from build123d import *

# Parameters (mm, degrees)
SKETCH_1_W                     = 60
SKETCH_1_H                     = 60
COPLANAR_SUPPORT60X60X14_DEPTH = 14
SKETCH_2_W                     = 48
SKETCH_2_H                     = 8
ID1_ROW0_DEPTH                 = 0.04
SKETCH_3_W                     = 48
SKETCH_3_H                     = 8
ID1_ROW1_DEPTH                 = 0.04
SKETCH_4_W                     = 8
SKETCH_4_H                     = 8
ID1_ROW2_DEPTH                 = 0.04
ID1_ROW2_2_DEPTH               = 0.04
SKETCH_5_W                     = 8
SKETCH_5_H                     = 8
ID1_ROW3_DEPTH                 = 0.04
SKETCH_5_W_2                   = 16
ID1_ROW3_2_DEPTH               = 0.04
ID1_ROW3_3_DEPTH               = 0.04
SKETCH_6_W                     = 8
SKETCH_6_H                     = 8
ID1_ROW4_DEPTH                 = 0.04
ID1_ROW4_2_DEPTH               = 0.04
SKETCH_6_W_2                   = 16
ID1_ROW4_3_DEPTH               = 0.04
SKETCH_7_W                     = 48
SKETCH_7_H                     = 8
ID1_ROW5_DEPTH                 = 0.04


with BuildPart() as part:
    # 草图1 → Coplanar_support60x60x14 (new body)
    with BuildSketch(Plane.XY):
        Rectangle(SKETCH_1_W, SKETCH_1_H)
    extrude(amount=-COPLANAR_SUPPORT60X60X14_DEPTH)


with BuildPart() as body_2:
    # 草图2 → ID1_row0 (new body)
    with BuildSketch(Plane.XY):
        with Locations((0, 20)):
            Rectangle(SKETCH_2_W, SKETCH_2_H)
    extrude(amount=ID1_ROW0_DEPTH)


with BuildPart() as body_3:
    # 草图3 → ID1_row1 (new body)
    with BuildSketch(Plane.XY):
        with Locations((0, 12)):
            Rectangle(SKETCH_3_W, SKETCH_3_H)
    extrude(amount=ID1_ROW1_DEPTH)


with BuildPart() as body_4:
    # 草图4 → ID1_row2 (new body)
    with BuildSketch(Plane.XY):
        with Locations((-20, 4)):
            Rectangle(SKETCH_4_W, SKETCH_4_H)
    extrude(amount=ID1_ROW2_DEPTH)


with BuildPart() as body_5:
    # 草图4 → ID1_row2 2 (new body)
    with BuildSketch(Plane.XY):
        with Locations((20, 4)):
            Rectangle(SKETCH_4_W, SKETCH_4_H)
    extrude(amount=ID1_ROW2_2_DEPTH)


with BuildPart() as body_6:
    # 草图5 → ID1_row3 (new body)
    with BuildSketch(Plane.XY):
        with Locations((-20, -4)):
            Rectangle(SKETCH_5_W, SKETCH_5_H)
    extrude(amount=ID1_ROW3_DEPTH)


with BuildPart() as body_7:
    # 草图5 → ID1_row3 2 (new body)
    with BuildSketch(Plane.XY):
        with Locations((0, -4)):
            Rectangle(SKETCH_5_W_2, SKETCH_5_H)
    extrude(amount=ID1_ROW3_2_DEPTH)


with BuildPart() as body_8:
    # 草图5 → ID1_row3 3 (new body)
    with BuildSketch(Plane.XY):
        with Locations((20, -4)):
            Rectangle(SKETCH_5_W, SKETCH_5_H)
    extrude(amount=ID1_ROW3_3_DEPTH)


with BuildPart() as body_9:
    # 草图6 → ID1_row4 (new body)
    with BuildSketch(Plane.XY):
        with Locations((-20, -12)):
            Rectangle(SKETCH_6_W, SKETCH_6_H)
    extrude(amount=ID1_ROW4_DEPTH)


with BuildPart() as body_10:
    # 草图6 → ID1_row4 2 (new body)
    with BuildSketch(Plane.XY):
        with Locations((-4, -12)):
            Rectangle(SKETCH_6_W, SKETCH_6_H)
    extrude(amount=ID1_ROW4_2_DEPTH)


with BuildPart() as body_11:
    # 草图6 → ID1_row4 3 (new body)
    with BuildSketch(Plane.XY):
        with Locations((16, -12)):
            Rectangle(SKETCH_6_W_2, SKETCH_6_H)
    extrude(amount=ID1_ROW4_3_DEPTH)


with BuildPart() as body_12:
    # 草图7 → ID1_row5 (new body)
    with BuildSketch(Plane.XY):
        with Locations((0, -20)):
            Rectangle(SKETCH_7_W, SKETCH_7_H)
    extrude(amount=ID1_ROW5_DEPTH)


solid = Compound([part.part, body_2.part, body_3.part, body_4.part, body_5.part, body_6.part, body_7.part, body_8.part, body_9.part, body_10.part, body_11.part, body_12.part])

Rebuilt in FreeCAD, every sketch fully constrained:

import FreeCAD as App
import Part
import Sketcher

V = App.Vector
Q = App.Units.Quantity

doc = App.newDocument("Part")
params = doc.addObject("Spreadsheet::Sheet", "Params")
for row, (alias, value) in enumerate([
    ("sketch1_width", "60 mm"),
    ("pad1_length", "14 mm"),
    ("sketch2_width", "48 mm"),
    ("sketch2_height", "8 mm"),
    ("pad2_length", "0.04 mm"),
    ("sketch3_width", "48 mm"),
    ("sketch3_height", "8 mm"),
    ("pad3_length", "0.04 mm"),
    ("sketch4_width", "8 mm"),
    ("pad4_length", "0.04 mm"),
    ("sketch5_width", "8 mm"),
    ("pad5_length", "0.04 mm"),
    ("sketch6_width", "8 mm"),
    ("pad6_length", "0.04 mm"),
    ("sketch7_width", "16 mm"),
    ("sketch7_height", "8 mm"),
    ("pad7_length", "0.04 mm"),
    ("sketch8_width", "8 mm"),
    ("pad8_length", "0.04 mm"),
    ("sketch9_width", "8 mm"),
    ("pad9_length", "0.04 mm"),
    ("sketch10_width", "8 mm"),
    ("pad10_length", "0.04 mm"),
    ("sketch11_width", "16 mm"),
    ("sketch11_height", "8 mm"),
    ("pad11_length", "0.04 mm"),
    ("sketch12_width", "48 mm"),
    ("sketch12_height", "8 mm"),
    ("pad12_length", "0.04 mm"),
], start=1):
    params.set(f"A{row}", alias)
    params.set(f"B{row}", "=" + value)
    params.setAlias(f"B{row}", alias)

body = doc.addObject("PartDesign::Body", "Body")

sketch1 = body.newObject("Sketcher::SketchObject", "Sketch")
sketch1.AttachmentSupport = (doc.getObject("XY_Plane"), [""])
sketch1.MapMode = "FlatFace"
sketch1.addGeometry([
    Part.LineSegment(V(-30, 30, 0), V(-30, -30, 0)),
    Part.LineSegment(V(-30, -30, 0), V(30, -30, 0)),
    Part.LineSegment(V(30, -30, 0), V(30, 30, 0)),
    Part.LineSegment(V(30, 30, 0), V(-30, 30, 0)),
], False)
sketch1.addConstraint([
    Sketcher.Constraint("Coincident", 0, 2, 1, 1),
    Sketcher.Constraint("Coincident", 1, 2, 2, 1),
    Sketcher.Constraint("Coincident", 2, 2, 3, 1),
    Sketcher.Constraint("Coincident", 3, 2, 0, 1),
    Sketcher.Constraint("Vertical", 0),
    Sketcher.Constraint("Horizontal", 1),
    Sketcher.Constraint("Vertical", 2),
    Sketcher.Constraint("Horizontal", 3),
    Sketcher.Constraint("Symmetric", 0, 2, 2, 2, -1, 1),
    Sketcher.Constraint("Equal", 3, 0),
    Sketcher.Constraint("DistanceX", 1, 1, 1, 2, Q("60 mm")),
])
sketch1.setExpression("Constraints[10]", "Params.sketch1_width")
pad1 = body.newObject("PartDesign::Pad", "Pad")
pad1.Profile = sketch1
pad1.setExpression("Length", "Params.pad1_length")
pad1.Reversed = True
body2 = doc.addObject("PartDesign::Body", "Body001")

sketch2 = body2.newObject("Sketcher::SketchObject", "Sketch001")
sketch2.AttachmentSupport = (doc.getObject("XY_Plane001"), [""])
sketch2.MapMode = "FlatFace"
sketch2.addGeometry([
    Part.LineSegment(V(-24, 24, 0), V(-24, 16, 0)),
    Part.LineSegment(V(-24, 16, 0), V(24, 16, 0)),
    Part.LineSegment(V(24, 16, 0), V(24, 24, 0)),
    Part.LineSegment(V(24, 24, 0), V(-24, 24, 0)),
], False)
sketch2.addConstraint([
    Sketcher.Constraint("Coincident", 0, 2, 1, 1),
    Sketcher.Constraint("Coincident", 1, 2, 2, 1),
    Sketcher.Constraint("Coincident", 2, 2, 3, 1),
    Sketcher.Constraint("Coincident", 3, 2, 0, 1),
    Sketcher.Constraint("Vertical", 0),
    Sketcher.Constraint("Horizontal", 1),
    Sketcher.Constraint("Vertical", 2),
    Sketcher.Constraint("Horizontal", 3),
    Sketcher.Constraint("DistanceX", 1, 1, 1, 2, Q("48 mm")),
    Sketcher.Constraint("DistanceY", 0, 2, 0, 1, Q("8 mm")),
    Sketcher.Constraint("DistanceX", 0, 2, -1, 1, Q("24 mm")),
    Sketcher.Constraint("DistanceY", -1, 1, 0, 2, Q("16 mm")),
])
sketch2.setExpression("Constraints[8]", "Params.sketch2_width")
sketch2.setExpression("Constraints[9]", "Params.sketch2_height")
pad2 = body2.newObject("PartDesign::Pad", "Pad001")
pad2.Profile = sketch2
pad2.setExpression("Length", "Params.pad2_length")
body3 = doc.addObject("PartDesign::Body", "Body002")

sketch3 = body3.newObject("Sketcher::SketchObject", "Sketch002")
sketch3.AttachmentSupport = (doc.getObject("XY_Plane002"), [""])
sketch3.MapMode = "FlatFace"
sketch3.addGeometry([
    Part.LineSegment(V(-24, 16, 0), V(-24, 8, 0)),
    Part.LineSegment(V(-24, 8, 0), V(24, 8, 0)),
    Part.LineSegment(V(24, 8, 0), V(24, 16, 0)),
    Part.LineSegment(V(24, 16, 0), V(-24, 16, 0)),
], False)
sketch3.addConstraint([
    Sketcher.Constraint("Coincident", 0, 2, 1, 1),
    Sketcher.Constraint("Coincident", 1, 2, 2, 1),
    Sketcher.Constraint("Coincident", 2, 2, 3, 1),
    Sketcher.Constraint("Coincident", 3, 2, 0, 1),
    Sketcher.Constraint("Vertical", 0),
    Sketcher.Constraint("Horizontal", 1),
    Sketcher.Constraint("Vertical", 2),
    Sketcher.Constraint("Horizontal", 3),
    Sketcher.Constraint("DistanceX", 1, 1, 1, 2, Q("48 mm")),
    Sketcher.Constraint("DistanceY", 0, 2, 0, 1, Q("8 mm")),
    Sketcher.Constraint("DistanceX", 0, 2, -1, 1, Q("24 mm")),
    Sketcher.Constraint("DistanceY", -1, 1, 0, 2, Q("8 mm")),
])
sketch3.setExpression("Constraints[8]", "Params.sketch3_width")
sketch3.setExpression("Constraints[9]", "Params.sketch3_height")
pad3 = body3.newObject("PartDesign::Pad", "Pad002")
pad3.Profile = sketch3
pad3.setExpression("Length", "Params.pad3_length")
body4 = doc.addObject("PartDesign::Body", "Body003")

sketch4 = body4.newObject("Sketcher::SketchObject", "Sketch003")
sketch4.AttachmentSupport = (doc.getObject("XY_Plane003"), [""])
sketch4.MapMode = "FlatFace"
sketch4.addGeometry([
    Part.LineSegment(V(-24, 8, 0), V(-24, 0, 0)),
    Part.LineSegment(V(-24, 0, 0), V(-16, 0, 0)),
    Part.LineSegment(V(-16, 0, 0), V(-16, 8, 0)),
    Part.LineSegment(V(-16, 8, 0), V(-24, 8, 0)),
], False)
sketch4.addConstraint([
    Sketcher.Constraint("Coincident", 0, 2, 1, 1),
    Sketcher.Constraint("Coincident", 1, 2, 2, 1),
    Sketcher.Constraint("Coincident", 2, 2, 3, 1),
    Sketcher.Constraint("Coincident", 3, 2, 0, 1),
    Sketcher.Constraint("Vertical", 0),
    Sketcher.Constraint("Horizontal", 1),
    Sketcher.Constraint("Vertical", 2),
    Sketcher.Constraint("Horizontal", 3),
    Sketcher.Constraint("PointOnObject", 0, 2, -1),
    Sketcher.Constraint("Equal", 3, 0),
    Sketcher.Constraint("DistanceX", 1, 1, 1, 2, Q("8 mm")),
    Sketcher.Constraint("DistanceX", 0, 2, -1, 1, Q("24 mm")),
])
sketch4.setExpression("Constraints[10]", "Params.sketch4_width")
pad4 = body4.newObject("PartDesign::Pad", "Pad003")
pad4.Profile = sketch4
pad4.setExpression("Length", "Params.pad4_length")
body5 = doc.addObject("PartDesign::Body", "Body004")

sketch5 = body5.newObject("Sketcher::SketchObject", "Sketch004")
sketch5.AttachmentSupport = (doc.getObject("XY_Plane004"), [""])
sketch5.MapMode = "FlatFace"
sketch5.addGeometry([
    Part.LineSegment(V(16, 8, 0), V(16, 0, 0)),
    Part.LineSegment(V(16, 0, 0), V(24, 0, 0)),
    Part.LineSegment(V(24, 0, 0), V(24, 8, 0)),
    Part.LineSegment(V(24, 8, 0), V(16, 8, 0)),
], False)
sketch5.addConstraint([
    Sketcher.Constraint("Coincident", 0, 2, 1, 1),
    Sketcher.Constraint("Coincident", 1, 2, 2, 1),
    Sketcher.Constraint("Coincident", 2, 2, 3, 1),
    Sketcher.Constraint("Coincident", 3, 2, 0, 1),
    Sketcher.Constraint("Vertical", 0),
    Sketcher.Constraint("Horizontal", 1),
    Sketcher.Constraint("Vertical", 2),
    Sketcher.Constraint("Horizontal", 3),
    Sketcher.Constraint("PointOnObject", 0, 2, -1),
    Sketcher.Constraint("Equal", 3, 0),
    Sketcher.Constraint("DistanceX", 1, 1, 1, 2, Q("8 mm")),
    Sketcher.Constraint("DistanceX", -1, 1, 0, 2, Q("16 mm")),
])
sketch5.setExpression("Constraints[10]", "Params.sketch5_width")
pad5 = body5.newObject("PartDesign::Pad", "Pad004")
pad5.Profile = sketch5
pad5.setExpression("Length", "Params.pad5_length")
body6 = doc.addObject("PartDesign::Body", "Body005")

sketch6 = body6.newObject("Sketcher::SketchObject", "Sketch005")
sketch6.AttachmentSupport = (doc.getObject("XY_Plane005"), [""])
sketch6.MapMode = "FlatFace"
sketch6.addGeometry([
    Part.LineSegment(V(-24, 0, 0), V(-24, -8, 0)),
    Part.LineSegment(V(-24, -8, 0), V(-16, -8, 0)),
    Part.LineSegment(V(-16, -8, 0), V(-16, 0, 0)),
    Part.LineSegment(V(-16, 0, 0), V(-24, 0, 0)),
], False)
sketch6.addConstraint([
    Sketcher.Constraint("Coincident", 0, 2, 1, 1),
    Sketcher.Constraint("Coincident", 1, 2, 2, 1),
    Sketcher.Constraint("Coincident", 2, 2, 3, 1),
    Sketcher.Constraint("Coincident", 3, 2, 0, 1),
    Sketcher.Constraint("Vertical", 0),
    Sketcher.Constraint("Horizontal", 1),
    Sketcher.Constraint("Vertical", 2),
    Sketcher.Constraint("Horizontal", 3),
    Sketcher.Constraint("PointOnObject", 2, 2, -1),
    Sketcher.Constraint("Equal", 3, 0),
    Sketcher.Constraint("DistanceX", 1, 1, 1, 2, Q("8 mm")),
    Sketcher.Constraint("DistanceX", 0, 2, -1, 1, Q("24 mm")),
])
sketch6.setExpression("Constraints[10]", "Params.sketch6_width")
pad6 = body6.newObject("PartDesign::Pad", "Pad005")
pad6.Profile = sketch6
pad6.setExpression("Length", "Params.pad6_length")
body7 = doc.addObject("PartDesign::Body", "Body006")

sketch7 = body7.newObject("Sketcher::SketchObject", "Sketch006")
sketch7.AttachmentSupport = (doc.getObject("XY_Plane006"), [""])
sketch7.MapMode = "FlatFace"
sketch7.addGeometry([
    Part.LineSegment(V(-8, 0, 0), V(-8, -8, 0)),
    Part.LineSegment(V(-8, -8, 0), V(8, -8, 0)),
    Part.LineSegment(V(8, -8, 0), V(8, 0, 0)),
    Part.LineSegment(V(8, 0, 0), V(-8, 0, 0)),
], False)
sketch7.addConstraint([
    Sketcher.Constraint("Coincident", 0, 2, 1, 1),
    Sketcher.Constraint("Coincident", 1, 2, 2, 1),
    Sketcher.Constraint("Coincident", 2, 2, 3, 1),
    Sketcher.Constraint("Coincident", 3, 2, 0, 1),
    Sketcher.Constraint("Vertical", 0),
    Sketcher.Constraint("Horizontal", 1),
    Sketcher.Constraint("Vertical", 2),
    Sketcher.Constraint("Horizontal", 3),
    Sketcher.Constraint("Symmetric", 2, 2, 3, 2, -1, 1),
    Sketcher.Constraint("DistanceX", 1, 1, 1, 2, Q("16 mm")),
    Sketcher.Constraint("DistanceY", 0, 2, 0, 1, Q("8 mm")),
])
sketch7.setExpression("Constraints[9]", "Params.sketch7_width")
sketch7.setExpression("Constraints[10]", "Params.sketch7_height")
pad7 = body7.newObject("PartDesign::Pad", "Pad006")
pad7.Profile = sketch7
pad7.setExpression("Length", "Params.pad7_length")
body8 = doc.addObject("PartDesign::Body", "Body007")

sketch8 = body8.newObject("Sketcher::SketchObject", "Sketch007")
sketch8.AttachmentSupport = (doc.getObject("XY_Plane007"), [""])
sketch8.MapMode = "FlatFace"
sketch8.addGeometry([
    Part.LineSegment(V(16, 0, 0), V(16, -8, 0)),
    Part.LineSegment(V(16, -8, 0), V(24, -8, 0)),
    Part.LineSegment(V(24, -8, 0), V(24, 0, 0)),
    Part.LineSegment(V(24, 0, 0), V(16, 0, 0)),
], False)
sketch8.addConstraint([
    Sketcher.Constraint("Coincident", 0, 2, 1, 1),
    Sketcher.Constraint("Coincident", 1, 2, 2, 1),
    Sketcher.Constraint("Coincident", 2, 2, 3, 1),
    Sketcher.Constraint("Coincident", 3, 2, 0, 1),
    Sketcher.Constraint("Vertical", 0),
    Sketcher.Constraint("Horizontal", 1),
    Sketcher.Constraint("Vertical", 2),
    Sketcher.Constraint("Horizontal", 3),
    Sketcher.Constraint("PointOnObject", 2, 2, -1),
    Sketcher.Constraint("Equal", 3, 0),
    Sketcher.Constraint("DistanceX", 1, 1, 1, 2, Q("8 mm")),
    Sketcher.Constraint("DistanceX", -1, 1, 0, 2, Q("16 mm")),
])
sketch8.setExpression("Constraints[10]", "Params.sketch8_width")
pad8 = body8.newObject("PartDesign::Pad", "Pad007")
pad8.Profile = sketch8
pad8.setExpression("Length", "Params.pad8_length")
body9 = doc.addObject("PartDesign::Body", "Body008")

sketch9 = body9.newObject("Sketcher::SketchObject", "Sketch008")
sketch9.AttachmentSupport = (doc.getObject("XY_Plane008"), [""])
sketch9.MapMode = "FlatFace"
sketch9.addGeometry([
    Part.LineSegment(V(-24, -8, 0), V(-24, -16, 0)),
    Part.LineSegment(V(-24, -16, 0), V(-16, -16, 0)),
    Part.LineSegment(V(-16, -16, 0), V(-16, -8, 0)),
    Part.LineSegment(V(-16, -8, 0), V(-24, -8, 0)),
], False)
sketch9.addConstraint([
    Sketcher.Constraint("Coincident", 0, 2, 1, 1),
    Sketcher.Constraint("Coincident", 1, 2, 2, 1),
    Sketcher.Constraint("Coincident", 2, 2, 3, 1),
    Sketcher.Constraint("Coincident", 3, 2, 0, 1),
    Sketcher.Constraint("Vertical", 0),
    Sketcher.Constraint("Horizontal", 1),
    Sketcher.Constraint("Vertical", 2),
    Sketcher.Constraint("Horizontal", 3),
    Sketcher.Constraint("Equal", 3, 0),
    Sketcher.Constraint("DistanceX", 1, 1, 1, 2, Q("8 mm")),
    Sketcher.Constraint("DistanceX", 0, 2, -1, 1, Q("24 mm")),
    Sketcher.Constraint("DistanceY", 0, 2, -1, 1, Q("16 mm")),
])
sketch9.setExpression("Constraints[9]", "Params.sketch9_width")
pad9 = body9.newObject("PartDesign::Pad", "Pad008")
pad9.Profile = sketch9
pad9.setExpression("Length", "Params.pad9_length")
body10 = doc.addObject("PartDesign::Body", "Body009")

sketch10 = body10.newObject("Sketcher::SketchObject", "Sketch009")
sketch10.AttachmentSupport = (doc.getObject("XY_Plane009"), [""])
sketch10.MapMode = "FlatFace"
sketch10.addGeometry([
    Part.LineSegment(V(-8, -8, 0), V(-8, -16, 0)),
    Part.LineSegment(V(-8, -16, 0), V(0, -16, 0)),
    Part.LineSegment(V(0, -16, 0), V(0, -8, 0)),
    Part.LineSegment(V(0, -8, 0), V(-8, -8, 0)),
], False)
sketch10.addConstraint([
    Sketcher.Constraint("Coincident", 0, 2, 1, 1),
    Sketcher.Constraint("Coincident", 1, 2, 2, 1),
    Sketcher.Constraint("Coincident", 2, 2, 3, 1),
    Sketcher.Constraint("Coincident", 3, 2, 0, 1),
    Sketcher.Constraint("Vertical", 0),
    Sketcher.Constraint("Horizontal", 1),
    Sketcher.Constraint("Vertical", 2),
    Sketcher.Constraint("Horizontal", 3),
    Sketcher.Constraint("PointOnObject", 1, 2, -2),
    Sketcher.Constraint("Equal", 3, 0),
    Sketcher.Constraint("DistanceX", 1, 1, 1, 2, Q("8 mm")),
    Sketcher.Constraint("DistanceY", 0, 2, -1, 1, Q("16 mm")),
])
sketch10.setExpression("Constraints[10]", "Params.sketch10_width")
pad10 = body10.newObject("PartDesign::Pad", "Pad009")
pad10.Profile = sketch10
pad10.setExpression("Length", "Params.pad10_length")
body11 = doc.addObject("PartDesign::Body", "Body010")

sketch11 = body11.newObject("Sketcher::SketchObject", "Sketch010")
sketch11.AttachmentSupport = (doc.getObject("XY_Plane010"), [""])
sketch11.MapMode = "FlatFace"
sketch11.addGeometry([
    Part.LineSegment(V(8, -8, 0), V(8, -16, 0)),
    Part.LineSegment(V(8, -16, 0), V(24, -16, 0)),
    Part.LineSegment(V(24, -16, 0), V(24, -8, 0)),
    Part.LineSegment(V(24, -8, 0), V(8, -8, 0)),
], False)
sketch11.addConstraint([
    Sketcher.Constraint("Coincident", 0, 2, 1, 1),
    Sketcher.Constraint("Coincident", 1, 2, 2, 1),
    Sketcher.Constraint("Coincident", 2, 2, 3, 1),
    Sketcher.Constraint("Coincident", 3, 2, 0, 1),
    Sketcher.Constraint("Vertical", 0),
    Sketcher.Constraint("Horizontal", 1),
    Sketcher.Constraint("Vertical", 2),
    Sketcher.Constraint("Horizontal", 3),
    Sketcher.Constraint("DistanceX", 1, 1, 1, 2, Q("16 mm")),
    Sketcher.Constraint("DistanceY", 0, 2, 0, 1, Q("8 mm")),
    Sketcher.Constraint("DistanceX", -1, 1, 0, 2, Q("8 mm")),
    Sketcher.Constraint("DistanceY", 0, 2, -1, 1, Q("16 mm")),
])
sketch11.setExpression("Constraints[8]", "Params.sketch11_width")
sketch11.setExpression("Constraints[9]", "Params.sketch11_height")
pad11 = body11.newObject("PartDesign::Pad", "Pad010")
pad11.Profile = sketch11
pad11.setExpression("Length", "Params.pad11_length")
body12 = doc.addObject("PartDesign::Body", "Body011")

sketch12 = body12.newObject("Sketcher::SketchObject", "Sketch011")
sketch12.AttachmentSupport = (doc.getObject("XY_Plane011"), [""])
sketch12.MapMode = "FlatFace"
sketch12.addGeometry([
    Part.LineSegment(V(-24, -16, 0), V(-24, -24, 0)),
    Part.LineSegment(V(-24, -24, 0), V(24, -24, 0)),
    Part.LineSegment(V(24, -24, 0), V(24, -16, 0)),
    Part.LineSegment(V(24, -16, 0), V(-24, -16, 0)),
], False)
sketch12.addConstraint([
    Sketcher.Constraint("Coincident", 0, 2, 1, 1),
    Sketcher.Constraint("Coincident", 1, 2, 2, 1),
    Sketcher.Constraint("Coincident", 2, 2, 3, 1),
    Sketcher.Constraint("Coincident", 3, 2, 0, 1),
    Sketcher.Constraint("Vertical", 0),
    Sketcher.Constraint("Horizontal", 1),
    Sketcher.Constraint("Vertical", 2),
    Sketcher.Constraint("Horizontal", 3),
    Sketcher.Constraint("DistanceX", 1, 1, 1, 2, Q("48 mm")),
    Sketcher.Constraint("DistanceY", 0, 2, 0, 1, Q("8 mm")),
    Sketcher.Constraint("DistanceX", 0, 2, -1, 1, Q("24 mm")),
    Sketcher.Constraint("DistanceY", 0, 2, -1, 1, Q("24 mm")),
])
sketch12.setExpression("Constraints[8]", "Params.sketch12_width")
sketch12.setExpression("Constraints[9]", "Params.sketch12_height")
pad12 = body12.newObject("PartDesign::Pad", "Pad011")
pad12.Profile = sketch12
pad12.setExpression("Length", "Params.pad12_length")

doc.recompute()
